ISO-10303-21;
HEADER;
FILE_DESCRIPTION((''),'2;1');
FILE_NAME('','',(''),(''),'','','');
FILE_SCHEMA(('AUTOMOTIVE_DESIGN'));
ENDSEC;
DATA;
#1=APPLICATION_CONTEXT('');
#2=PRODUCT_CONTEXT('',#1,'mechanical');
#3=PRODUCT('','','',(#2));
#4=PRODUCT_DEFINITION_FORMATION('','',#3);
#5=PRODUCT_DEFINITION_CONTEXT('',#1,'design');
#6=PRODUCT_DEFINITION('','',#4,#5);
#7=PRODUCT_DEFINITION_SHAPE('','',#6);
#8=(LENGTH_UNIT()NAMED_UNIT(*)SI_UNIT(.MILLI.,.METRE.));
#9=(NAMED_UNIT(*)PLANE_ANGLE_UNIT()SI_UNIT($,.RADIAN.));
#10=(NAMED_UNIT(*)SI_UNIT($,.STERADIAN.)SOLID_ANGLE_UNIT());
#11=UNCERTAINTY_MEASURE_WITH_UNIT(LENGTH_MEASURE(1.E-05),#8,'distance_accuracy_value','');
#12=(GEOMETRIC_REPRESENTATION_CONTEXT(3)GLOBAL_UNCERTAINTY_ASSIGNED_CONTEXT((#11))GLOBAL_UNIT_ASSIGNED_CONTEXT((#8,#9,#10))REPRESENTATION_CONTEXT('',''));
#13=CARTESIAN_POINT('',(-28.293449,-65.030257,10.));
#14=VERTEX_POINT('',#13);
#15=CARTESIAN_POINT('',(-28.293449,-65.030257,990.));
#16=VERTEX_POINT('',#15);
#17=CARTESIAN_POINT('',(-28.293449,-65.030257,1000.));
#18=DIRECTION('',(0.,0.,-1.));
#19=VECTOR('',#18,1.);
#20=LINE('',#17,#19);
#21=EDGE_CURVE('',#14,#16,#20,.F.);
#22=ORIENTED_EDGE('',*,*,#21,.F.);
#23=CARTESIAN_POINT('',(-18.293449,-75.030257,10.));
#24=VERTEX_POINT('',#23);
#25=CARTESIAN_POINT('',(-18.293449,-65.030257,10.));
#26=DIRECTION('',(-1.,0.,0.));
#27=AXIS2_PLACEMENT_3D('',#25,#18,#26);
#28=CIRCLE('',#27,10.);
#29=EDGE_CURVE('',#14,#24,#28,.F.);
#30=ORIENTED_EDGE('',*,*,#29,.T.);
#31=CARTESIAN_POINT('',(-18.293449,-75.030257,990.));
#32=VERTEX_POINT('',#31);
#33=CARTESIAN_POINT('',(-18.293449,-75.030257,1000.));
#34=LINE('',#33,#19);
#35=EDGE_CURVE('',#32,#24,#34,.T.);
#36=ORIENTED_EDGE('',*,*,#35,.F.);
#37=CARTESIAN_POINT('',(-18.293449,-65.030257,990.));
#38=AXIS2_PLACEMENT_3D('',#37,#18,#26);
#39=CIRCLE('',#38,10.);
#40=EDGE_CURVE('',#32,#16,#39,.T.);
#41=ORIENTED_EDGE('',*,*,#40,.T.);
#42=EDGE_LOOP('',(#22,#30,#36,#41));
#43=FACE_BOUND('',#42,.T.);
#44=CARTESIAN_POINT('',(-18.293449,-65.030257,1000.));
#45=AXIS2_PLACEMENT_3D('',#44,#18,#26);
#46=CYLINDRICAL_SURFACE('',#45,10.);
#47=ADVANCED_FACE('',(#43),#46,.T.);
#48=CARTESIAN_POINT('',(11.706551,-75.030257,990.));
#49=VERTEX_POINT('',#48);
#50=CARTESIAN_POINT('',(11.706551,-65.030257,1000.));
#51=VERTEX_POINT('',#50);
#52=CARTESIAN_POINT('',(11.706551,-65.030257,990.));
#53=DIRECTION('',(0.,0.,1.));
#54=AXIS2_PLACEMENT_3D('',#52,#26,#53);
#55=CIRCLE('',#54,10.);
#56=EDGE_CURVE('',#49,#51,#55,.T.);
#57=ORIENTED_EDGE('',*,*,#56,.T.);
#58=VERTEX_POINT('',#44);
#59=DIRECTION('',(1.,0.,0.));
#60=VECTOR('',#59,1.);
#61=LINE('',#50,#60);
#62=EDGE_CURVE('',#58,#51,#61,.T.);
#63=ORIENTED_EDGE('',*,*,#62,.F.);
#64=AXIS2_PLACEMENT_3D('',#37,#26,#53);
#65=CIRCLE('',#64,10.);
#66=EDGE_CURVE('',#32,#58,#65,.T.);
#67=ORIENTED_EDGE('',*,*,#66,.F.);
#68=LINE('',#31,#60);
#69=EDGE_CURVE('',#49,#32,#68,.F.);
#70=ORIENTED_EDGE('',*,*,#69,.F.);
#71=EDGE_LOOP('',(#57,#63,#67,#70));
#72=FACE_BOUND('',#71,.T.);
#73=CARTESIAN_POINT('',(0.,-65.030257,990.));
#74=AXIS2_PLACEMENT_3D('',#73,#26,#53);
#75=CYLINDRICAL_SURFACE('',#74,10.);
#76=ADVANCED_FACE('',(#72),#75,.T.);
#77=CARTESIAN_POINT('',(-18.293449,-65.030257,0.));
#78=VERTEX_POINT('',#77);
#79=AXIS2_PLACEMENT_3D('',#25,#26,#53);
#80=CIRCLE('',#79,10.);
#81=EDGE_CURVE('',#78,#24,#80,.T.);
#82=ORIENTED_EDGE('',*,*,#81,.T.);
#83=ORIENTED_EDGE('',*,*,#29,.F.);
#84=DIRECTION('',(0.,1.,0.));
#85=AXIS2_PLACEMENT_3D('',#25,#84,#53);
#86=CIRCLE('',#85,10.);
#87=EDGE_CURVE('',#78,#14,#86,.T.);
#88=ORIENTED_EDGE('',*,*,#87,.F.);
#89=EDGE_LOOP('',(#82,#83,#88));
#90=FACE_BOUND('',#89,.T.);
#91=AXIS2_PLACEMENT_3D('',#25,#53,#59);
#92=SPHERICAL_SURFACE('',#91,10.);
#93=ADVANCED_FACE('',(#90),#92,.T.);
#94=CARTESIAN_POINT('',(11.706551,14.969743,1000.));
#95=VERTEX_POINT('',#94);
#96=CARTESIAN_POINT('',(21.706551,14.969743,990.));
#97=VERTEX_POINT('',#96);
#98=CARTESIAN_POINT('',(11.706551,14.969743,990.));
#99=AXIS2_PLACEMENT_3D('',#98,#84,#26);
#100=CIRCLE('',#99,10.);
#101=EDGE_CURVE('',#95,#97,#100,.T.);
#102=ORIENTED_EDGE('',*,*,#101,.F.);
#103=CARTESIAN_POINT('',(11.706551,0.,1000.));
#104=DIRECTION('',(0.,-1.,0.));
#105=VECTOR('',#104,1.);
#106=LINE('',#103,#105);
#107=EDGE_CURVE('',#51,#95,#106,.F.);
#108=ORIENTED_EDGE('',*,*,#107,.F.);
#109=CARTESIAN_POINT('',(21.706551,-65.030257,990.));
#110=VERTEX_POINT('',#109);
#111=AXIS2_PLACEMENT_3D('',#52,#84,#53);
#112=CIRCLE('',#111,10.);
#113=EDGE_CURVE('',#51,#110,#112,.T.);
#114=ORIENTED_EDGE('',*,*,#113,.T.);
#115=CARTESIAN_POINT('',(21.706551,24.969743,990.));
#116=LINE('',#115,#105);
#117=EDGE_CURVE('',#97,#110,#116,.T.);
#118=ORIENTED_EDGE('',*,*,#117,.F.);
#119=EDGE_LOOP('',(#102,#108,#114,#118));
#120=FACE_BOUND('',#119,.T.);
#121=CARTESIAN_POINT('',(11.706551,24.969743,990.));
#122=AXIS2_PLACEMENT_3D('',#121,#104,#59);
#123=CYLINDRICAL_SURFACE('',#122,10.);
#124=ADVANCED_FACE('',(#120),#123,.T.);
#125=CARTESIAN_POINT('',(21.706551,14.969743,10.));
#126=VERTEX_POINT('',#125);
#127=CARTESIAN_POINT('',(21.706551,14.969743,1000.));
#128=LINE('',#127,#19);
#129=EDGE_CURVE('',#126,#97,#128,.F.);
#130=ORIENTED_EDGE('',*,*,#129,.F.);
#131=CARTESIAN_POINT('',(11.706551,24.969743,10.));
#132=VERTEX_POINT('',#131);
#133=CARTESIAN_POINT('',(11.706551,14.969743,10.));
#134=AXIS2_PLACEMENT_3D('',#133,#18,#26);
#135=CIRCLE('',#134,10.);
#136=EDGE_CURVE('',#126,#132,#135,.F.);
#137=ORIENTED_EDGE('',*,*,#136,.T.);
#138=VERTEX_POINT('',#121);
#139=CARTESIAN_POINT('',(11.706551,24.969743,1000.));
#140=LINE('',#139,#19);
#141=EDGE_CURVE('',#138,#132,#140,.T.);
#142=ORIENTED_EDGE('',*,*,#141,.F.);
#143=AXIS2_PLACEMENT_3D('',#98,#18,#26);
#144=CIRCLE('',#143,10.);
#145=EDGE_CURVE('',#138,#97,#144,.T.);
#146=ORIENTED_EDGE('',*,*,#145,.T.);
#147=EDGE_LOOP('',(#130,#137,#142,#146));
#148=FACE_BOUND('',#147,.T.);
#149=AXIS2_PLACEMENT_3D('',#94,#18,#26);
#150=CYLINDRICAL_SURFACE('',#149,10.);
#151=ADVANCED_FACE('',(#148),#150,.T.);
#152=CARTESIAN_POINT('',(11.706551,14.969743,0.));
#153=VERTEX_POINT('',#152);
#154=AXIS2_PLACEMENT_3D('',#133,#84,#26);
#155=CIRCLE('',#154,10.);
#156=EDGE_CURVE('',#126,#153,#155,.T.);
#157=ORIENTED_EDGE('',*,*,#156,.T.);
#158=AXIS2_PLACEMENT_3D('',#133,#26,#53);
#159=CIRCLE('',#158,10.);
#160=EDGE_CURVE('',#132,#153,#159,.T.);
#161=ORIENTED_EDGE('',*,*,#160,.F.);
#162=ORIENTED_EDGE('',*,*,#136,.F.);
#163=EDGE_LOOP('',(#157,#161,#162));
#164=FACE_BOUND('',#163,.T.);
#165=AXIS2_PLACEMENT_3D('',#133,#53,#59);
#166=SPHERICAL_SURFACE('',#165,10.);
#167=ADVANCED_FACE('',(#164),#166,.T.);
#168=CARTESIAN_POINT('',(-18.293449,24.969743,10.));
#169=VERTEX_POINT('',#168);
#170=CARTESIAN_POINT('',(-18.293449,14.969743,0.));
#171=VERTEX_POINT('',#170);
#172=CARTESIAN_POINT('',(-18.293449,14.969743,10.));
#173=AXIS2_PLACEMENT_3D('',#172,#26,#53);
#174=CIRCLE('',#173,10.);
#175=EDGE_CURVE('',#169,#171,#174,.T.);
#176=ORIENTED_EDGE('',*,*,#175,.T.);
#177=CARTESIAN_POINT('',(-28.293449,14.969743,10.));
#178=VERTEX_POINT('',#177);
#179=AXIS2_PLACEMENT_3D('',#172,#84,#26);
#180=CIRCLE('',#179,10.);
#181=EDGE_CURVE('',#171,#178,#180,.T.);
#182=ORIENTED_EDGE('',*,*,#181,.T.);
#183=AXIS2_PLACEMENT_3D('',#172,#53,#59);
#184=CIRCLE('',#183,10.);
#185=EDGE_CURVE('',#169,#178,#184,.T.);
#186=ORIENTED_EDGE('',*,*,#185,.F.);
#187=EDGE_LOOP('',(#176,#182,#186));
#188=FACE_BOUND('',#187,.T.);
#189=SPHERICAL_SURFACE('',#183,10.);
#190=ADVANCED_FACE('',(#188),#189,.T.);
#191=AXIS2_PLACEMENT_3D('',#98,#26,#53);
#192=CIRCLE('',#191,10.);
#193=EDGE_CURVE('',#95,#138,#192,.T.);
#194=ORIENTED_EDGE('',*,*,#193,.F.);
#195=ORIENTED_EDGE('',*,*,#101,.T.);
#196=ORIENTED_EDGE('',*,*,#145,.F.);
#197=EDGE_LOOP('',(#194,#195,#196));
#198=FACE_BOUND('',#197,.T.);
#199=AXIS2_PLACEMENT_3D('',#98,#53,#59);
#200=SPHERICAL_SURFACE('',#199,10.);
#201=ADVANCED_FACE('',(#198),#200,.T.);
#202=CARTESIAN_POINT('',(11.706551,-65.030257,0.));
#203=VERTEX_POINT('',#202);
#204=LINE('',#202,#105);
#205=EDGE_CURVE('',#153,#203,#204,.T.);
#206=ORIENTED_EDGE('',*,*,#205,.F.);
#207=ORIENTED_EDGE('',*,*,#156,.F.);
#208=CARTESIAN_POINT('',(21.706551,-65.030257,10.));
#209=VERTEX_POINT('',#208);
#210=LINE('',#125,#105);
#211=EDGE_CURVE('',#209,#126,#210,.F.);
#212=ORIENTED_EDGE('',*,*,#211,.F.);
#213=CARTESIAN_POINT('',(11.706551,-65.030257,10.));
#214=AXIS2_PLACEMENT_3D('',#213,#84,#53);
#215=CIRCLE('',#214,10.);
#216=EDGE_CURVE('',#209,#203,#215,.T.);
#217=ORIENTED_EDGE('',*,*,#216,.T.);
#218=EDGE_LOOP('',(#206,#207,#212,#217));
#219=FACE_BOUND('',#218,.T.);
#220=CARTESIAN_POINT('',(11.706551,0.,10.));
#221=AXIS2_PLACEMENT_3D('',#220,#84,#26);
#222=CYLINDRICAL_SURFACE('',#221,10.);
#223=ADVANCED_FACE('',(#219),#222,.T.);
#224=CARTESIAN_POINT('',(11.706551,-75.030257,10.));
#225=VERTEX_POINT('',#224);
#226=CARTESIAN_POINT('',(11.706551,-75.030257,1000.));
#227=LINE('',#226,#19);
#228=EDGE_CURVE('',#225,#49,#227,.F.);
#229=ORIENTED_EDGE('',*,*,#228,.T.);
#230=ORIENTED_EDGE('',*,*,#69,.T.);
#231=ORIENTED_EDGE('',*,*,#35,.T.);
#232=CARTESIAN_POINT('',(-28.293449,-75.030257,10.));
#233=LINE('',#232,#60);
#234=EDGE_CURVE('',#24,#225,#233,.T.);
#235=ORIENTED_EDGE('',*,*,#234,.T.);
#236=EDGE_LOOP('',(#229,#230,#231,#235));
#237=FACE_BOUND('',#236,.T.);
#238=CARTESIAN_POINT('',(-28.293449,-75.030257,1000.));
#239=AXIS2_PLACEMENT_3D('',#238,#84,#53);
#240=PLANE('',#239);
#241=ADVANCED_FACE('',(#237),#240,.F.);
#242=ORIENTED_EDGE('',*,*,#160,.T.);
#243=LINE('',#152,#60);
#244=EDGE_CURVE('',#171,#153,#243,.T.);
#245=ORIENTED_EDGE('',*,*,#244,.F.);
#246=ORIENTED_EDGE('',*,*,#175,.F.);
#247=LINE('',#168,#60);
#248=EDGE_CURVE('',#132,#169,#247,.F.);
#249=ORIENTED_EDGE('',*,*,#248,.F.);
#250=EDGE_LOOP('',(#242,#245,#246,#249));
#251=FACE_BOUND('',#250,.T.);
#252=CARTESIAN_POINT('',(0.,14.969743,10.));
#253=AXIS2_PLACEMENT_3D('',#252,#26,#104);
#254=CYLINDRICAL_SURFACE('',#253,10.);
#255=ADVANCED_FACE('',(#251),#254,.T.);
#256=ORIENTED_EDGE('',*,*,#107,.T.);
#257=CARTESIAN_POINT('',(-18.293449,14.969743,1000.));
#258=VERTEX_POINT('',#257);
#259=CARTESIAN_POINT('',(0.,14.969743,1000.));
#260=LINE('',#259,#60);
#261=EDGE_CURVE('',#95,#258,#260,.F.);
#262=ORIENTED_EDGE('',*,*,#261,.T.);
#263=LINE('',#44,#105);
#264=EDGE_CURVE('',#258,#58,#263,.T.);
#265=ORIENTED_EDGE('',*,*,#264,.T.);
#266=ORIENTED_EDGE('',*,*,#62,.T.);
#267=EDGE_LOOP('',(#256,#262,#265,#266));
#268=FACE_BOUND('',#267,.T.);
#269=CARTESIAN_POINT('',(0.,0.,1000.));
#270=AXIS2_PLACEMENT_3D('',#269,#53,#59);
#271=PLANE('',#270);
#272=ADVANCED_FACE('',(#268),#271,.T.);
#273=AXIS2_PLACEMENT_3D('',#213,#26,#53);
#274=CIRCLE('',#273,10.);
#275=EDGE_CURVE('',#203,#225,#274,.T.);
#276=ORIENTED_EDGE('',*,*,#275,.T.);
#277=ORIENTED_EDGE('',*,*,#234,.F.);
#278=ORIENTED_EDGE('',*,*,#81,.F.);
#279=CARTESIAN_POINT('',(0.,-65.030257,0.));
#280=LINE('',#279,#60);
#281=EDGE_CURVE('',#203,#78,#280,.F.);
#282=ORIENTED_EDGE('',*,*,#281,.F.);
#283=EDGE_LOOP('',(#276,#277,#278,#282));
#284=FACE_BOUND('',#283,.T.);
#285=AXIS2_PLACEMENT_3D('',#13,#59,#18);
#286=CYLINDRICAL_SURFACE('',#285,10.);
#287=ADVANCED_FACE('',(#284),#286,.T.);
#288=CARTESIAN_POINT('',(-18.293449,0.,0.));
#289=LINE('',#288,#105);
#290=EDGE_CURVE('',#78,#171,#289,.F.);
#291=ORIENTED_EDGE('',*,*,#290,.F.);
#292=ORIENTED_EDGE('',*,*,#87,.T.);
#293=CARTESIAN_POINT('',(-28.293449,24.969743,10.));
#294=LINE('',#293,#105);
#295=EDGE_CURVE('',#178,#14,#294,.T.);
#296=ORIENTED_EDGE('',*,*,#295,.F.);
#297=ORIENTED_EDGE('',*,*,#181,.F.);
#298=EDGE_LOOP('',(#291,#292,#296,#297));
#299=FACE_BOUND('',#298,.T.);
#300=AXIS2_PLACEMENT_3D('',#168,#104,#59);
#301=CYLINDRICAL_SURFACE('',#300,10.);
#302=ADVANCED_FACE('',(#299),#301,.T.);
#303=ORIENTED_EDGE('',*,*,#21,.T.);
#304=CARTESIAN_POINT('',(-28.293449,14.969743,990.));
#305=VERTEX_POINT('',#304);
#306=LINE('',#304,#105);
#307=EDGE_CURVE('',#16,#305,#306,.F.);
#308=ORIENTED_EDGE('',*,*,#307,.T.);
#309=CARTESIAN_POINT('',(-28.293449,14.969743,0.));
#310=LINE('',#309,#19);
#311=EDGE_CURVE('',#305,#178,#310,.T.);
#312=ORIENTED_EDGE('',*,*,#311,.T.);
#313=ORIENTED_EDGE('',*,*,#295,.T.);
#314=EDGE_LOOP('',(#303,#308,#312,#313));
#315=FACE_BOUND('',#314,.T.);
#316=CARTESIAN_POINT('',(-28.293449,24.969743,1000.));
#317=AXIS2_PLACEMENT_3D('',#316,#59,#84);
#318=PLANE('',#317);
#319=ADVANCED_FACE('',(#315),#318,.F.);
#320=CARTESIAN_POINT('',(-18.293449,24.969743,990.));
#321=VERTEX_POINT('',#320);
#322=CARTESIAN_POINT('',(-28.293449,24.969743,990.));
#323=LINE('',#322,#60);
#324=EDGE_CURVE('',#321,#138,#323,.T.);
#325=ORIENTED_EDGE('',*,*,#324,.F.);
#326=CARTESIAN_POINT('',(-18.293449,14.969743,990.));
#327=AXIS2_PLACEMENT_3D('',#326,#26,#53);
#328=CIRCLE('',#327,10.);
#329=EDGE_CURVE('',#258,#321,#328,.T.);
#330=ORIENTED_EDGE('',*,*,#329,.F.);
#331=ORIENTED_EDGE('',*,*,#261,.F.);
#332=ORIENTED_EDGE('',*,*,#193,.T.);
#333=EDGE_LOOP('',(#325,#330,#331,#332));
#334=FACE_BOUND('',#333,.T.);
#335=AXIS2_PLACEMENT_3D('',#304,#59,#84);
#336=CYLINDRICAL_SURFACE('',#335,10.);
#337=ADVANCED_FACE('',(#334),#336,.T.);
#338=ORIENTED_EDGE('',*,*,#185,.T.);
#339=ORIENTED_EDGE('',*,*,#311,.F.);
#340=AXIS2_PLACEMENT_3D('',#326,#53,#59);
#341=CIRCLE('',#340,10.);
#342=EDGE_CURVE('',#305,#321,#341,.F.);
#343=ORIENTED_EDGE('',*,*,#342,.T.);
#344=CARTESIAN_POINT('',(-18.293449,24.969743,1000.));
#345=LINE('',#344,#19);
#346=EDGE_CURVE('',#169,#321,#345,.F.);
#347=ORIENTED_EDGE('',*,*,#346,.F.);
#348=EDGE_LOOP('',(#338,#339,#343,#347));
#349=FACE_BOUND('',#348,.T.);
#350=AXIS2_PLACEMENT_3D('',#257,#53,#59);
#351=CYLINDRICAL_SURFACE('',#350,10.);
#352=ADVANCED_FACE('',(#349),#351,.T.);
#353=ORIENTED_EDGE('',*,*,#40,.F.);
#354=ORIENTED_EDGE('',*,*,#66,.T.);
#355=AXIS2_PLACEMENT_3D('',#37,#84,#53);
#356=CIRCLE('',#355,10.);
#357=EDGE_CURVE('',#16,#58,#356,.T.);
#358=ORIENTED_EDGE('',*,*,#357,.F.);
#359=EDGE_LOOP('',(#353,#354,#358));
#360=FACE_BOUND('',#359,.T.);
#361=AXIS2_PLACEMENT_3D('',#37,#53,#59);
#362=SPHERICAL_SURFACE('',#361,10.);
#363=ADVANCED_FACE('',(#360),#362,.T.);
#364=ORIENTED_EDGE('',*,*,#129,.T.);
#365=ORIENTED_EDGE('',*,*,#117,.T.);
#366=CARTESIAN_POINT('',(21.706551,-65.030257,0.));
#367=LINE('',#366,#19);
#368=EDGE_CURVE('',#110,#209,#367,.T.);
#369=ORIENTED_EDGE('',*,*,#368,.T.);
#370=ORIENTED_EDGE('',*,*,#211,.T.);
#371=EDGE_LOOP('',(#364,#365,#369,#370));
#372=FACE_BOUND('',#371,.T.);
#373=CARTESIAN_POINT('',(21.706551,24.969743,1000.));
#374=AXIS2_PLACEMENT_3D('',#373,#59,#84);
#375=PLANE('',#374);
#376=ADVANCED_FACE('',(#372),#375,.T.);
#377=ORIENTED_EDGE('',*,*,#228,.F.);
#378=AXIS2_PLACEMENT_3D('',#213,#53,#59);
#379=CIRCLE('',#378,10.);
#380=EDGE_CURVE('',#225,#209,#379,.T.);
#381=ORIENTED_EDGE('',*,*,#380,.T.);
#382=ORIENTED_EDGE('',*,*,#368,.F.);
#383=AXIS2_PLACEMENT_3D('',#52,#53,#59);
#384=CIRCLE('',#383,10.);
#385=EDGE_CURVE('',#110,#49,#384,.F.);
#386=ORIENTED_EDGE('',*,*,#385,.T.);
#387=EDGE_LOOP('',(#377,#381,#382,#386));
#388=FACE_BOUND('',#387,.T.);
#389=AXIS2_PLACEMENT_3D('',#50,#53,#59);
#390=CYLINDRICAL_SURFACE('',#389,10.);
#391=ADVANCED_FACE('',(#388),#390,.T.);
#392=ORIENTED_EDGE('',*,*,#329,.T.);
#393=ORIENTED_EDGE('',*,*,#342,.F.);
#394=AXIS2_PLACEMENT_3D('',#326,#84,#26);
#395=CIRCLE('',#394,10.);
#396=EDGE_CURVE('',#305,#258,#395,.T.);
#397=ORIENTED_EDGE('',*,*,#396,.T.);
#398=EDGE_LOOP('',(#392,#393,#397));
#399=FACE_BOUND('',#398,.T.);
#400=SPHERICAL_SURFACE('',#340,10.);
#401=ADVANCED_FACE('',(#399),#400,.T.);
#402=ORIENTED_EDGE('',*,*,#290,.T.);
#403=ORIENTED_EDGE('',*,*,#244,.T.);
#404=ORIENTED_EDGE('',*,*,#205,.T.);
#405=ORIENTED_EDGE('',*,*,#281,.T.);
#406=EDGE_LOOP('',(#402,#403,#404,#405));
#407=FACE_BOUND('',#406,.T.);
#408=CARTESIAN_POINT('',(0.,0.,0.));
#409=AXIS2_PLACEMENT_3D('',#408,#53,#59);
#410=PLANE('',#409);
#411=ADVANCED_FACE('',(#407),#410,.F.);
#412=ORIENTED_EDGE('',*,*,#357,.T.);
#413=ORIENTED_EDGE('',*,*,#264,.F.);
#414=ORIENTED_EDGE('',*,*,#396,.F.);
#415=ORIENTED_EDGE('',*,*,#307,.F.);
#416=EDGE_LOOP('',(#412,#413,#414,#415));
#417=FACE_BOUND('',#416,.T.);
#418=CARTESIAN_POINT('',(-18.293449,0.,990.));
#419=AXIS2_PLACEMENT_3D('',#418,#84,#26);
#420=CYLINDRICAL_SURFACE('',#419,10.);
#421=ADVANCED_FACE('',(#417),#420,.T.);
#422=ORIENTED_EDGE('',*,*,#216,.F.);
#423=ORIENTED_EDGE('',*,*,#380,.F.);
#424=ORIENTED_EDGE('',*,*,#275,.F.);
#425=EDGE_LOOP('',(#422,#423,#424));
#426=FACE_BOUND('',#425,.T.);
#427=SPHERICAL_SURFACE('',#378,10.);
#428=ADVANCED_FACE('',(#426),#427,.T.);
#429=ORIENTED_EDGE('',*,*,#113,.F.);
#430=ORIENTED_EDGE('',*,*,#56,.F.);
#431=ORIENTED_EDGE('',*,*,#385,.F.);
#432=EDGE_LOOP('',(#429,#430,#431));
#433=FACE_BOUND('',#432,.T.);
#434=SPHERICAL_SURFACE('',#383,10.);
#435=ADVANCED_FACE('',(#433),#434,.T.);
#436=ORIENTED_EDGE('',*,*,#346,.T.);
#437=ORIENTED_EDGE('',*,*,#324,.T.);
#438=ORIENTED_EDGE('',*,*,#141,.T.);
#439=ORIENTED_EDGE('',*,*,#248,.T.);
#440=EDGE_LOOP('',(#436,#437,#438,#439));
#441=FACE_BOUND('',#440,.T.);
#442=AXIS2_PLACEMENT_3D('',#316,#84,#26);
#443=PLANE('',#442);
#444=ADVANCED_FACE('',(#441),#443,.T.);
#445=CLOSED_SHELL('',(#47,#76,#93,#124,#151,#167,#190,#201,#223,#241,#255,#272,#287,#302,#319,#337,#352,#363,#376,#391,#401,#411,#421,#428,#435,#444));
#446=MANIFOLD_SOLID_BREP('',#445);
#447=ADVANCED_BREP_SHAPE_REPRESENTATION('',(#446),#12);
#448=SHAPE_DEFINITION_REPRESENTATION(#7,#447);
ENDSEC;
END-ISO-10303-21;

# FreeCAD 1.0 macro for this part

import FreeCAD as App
import Part
import Sketcher
from FreeCAD import Vector


def edges_at(feature, points):
    """Names of the edges that pass closest to the given points."""
    edges = feature.Shape.Edges
    near = lambda p: min(range(len(edges)), key=lambda i: edges[i].distToShape(Part.Vertex(*p))[0])
    return sorted({f"Edge{near(p) + 1}" for p in points})

doc = App.newDocument("Part")
body = doc.addObject("PartDesign::Body", "Body")

sketch1 = body.newObject("Sketcher::SketchObject", "Sketch")
sketch1.AttachmentSupport = (doc.getObject("XY_Plane"), [""])
sketch1.MapMode = "FlatFace"
sketch1.addGeometry(Part.LineSegment(Vector(-28, 25, 0), Vector(-28, -75, 0)), False)
sketch1.addGeometry(Part.LineSegment(Vector(-28, -75, 0), Vector(22, -75, 0)), False)
sketch1.addGeometry(Part.LineSegment(Vector(22, -75, 0), Vector(22, 25, 0)), False)
sketch1.addGeometry(Part.LineSegment(Vector(22, 25, 0), Vector(-28, 25, 0)), False)
sketch1.addConstraint(Sketcher.Constraint("Coincident", 0, 2, 1, 1))
sketch1.addConstraint(Sketcher.Constraint("Coincident", 1, 2, 2, 1))
sketch1.addConstraint(Sketcher.Constraint("Coincident", 2, 2, 3, 1))
sketch1.addConstraint(Sketcher.Constraint("Coincident", 3, 2, 0, 1))
sketch1.addConstraint(Sketcher.Constraint("Vertical", 0))
sketch1.addConstraint(Sketcher.Constraint("Horizontal", 1))
sketch1.addConstraint(Sketcher.Constraint("Vertical", 2))
sketch1.addConstraint(Sketcher.Constraint("Horizontal", 3))
sketch1.addConstraint(Sketcher.Constraint("DistanceX", 1, 1, 1, 2, 50.0))
sketch1.addConstraint(Sketcher.Constraint("DistanceY", 0, 2, 0, 1, 100.0))
sketch1.addConstraint(Sketcher.Constraint("DistanceX", 0, 2, -1, 1, 28.293449))
sketch1.addConstraint(Sketcher.Constraint("DistanceY", 0, 2, -1, 1, 75.030257))
pad1 = body.newObject("PartDesign::Pad", "Pad")
pad1.Profile = sketch1
pad1.Length = 1000
doc.recompute()

fillet = body.newObject("PartDesign::Fillet", "Fillet")
fillet.Base = (pad1, edges_at(pad1, [
    (-28.293, 24.97, 500),
    (21.707, 24.97, 500),
    (21.707, -75.03, 500),
    (-28.293, -75.03, 500),
]))
fillet.Radius = 10
doc.recompute()

fillet2 = body.newObject("PartDesign::Fillet", "Fillet001")
fillet2.Base = (fillet, edges_at(fillet, [
    (-3.293, 24.97, 0),
    (-3.293, 24.97, 1000),
    (-28.293, -25.03, 0),
    (21.707, -25.03, 0),
    (-3.293, -75.03, 0),
    (-25.365, -72.101, 0),
    (18.778, -72.101, 0),
    (-25.365, 22.041, 0),
    (18.778, 22.041, 0),
    (21.707, -25.03, 1000),
    (-28.293, -25.03, 1000),
    (-3.293, -75.03, 1000),
    (-25.365, -72.101, 1000),
    (18.778, -72.101, 1000),
    (-25.365, 22.041, 1000),
    (18.778, 22.041, 1000),
]))
fillet2.Radius = 10

doc.recompute()
